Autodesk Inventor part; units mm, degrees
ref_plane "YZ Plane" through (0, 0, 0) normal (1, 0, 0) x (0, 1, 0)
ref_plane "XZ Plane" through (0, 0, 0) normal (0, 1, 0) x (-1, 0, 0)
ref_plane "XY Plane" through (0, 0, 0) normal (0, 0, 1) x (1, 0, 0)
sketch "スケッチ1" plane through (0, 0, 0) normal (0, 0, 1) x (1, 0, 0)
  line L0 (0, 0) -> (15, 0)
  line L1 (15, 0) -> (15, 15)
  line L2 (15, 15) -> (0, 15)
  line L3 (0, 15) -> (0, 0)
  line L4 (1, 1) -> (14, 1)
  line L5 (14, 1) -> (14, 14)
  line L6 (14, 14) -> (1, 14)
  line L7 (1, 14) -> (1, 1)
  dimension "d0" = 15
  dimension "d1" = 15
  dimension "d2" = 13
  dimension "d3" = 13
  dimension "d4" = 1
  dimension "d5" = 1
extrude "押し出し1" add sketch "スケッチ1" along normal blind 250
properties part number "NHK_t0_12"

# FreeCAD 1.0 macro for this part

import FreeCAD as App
import Part
import Sketcher


def add_polygon(sketch, points):
    """Adds a closed chain of lines whose ends are joined by coincident constraints."""
    first, n = sketch.GeometryCount, len(points)
    for a, b in zip(points, points[1:] + points[:1]):
        sketch.addGeometry(Part.LineSegment(App.Vector(*a, 0), App.Vector(*b, 0)), False)
    for i in range(n):
        sketch.addConstraint(Sketcher.Constraint("Coincident", first + i, 2, first + (i + 1) % n, 1))

doc = App.newDocument("Part")
params = doc.addObject("Spreadsheet::Sheet", "Params")
for row, (alias, value) in enumerate([
    ("sketch1_width", "15 mm"),
    ("sketch1_width2", "13 mm"),
    ("pad1_length", "250 mm"),
], start=1):
    params.set(f"A{row}", alias)
    params.set(f"B{row}", "=" + value)
    params.setAlias(f"B{row}", alias)

body = doc.addObject("PartDesign::Body", "Body")

sketch1 = body.newObject("Sketcher::SketchObject", "Sketch")
sketch1.AttachmentSupport = (doc.getObject("XY_Plane"), [""])
sketch1.MapMode = "FlatFace"
add_polygon(sketch1, [(0, 15), (0, 0), (15, 0), (15, 15)])
add_polygon(sketch1, [(14, 1), (1, 1), (1, 14), (14, 14)])
sketch1.addConstraint([
    Sketcher.Constraint("Vertical", 0),
    Sketcher.Constraint("Horizontal", 1),
    Sketcher.Constraint("Vertical", 2),
    Sketcher.Constraint("Horizontal", 3),
    Sketcher.Constraint("Horizontal", 4),
    Sketcher.Constraint("Vertical", 5),
    Sketcher.Constraint("Horizontal", 6),
    Sketcher.Constraint("Vertical", 7),
    Sketcher.Constraint("Coincident", 0, 2, -1, 1),
    Sketcher.Constraint("Equal", 3, 0),
    Sketcher.Constraint("Equal", 6, 5),
    Sketcher.Constraint("DistanceX", 1, 1, 1, 2, 15.0),
    Sketcher.Constraint("DistanceX", 4, 2, 4, 1, 13.0),
    Sketcher.Constraint("DistanceX", -1, 1, 4, 2, 1.0),
    Sketcher.Constraint("DistanceY", -1, 1, 4, 2, 1.0),
])
sketch1.setExpression("Constraints[19]", "Params.sketch1_width")
sketch1.setExpression("Constraints[20]", "Params.sketch1_width2")
pad1 = body.newObject("PartDesign::Pad", "Pad")
pad1.Profile = sketch1
pad1.setExpression("Length", "Params.pad1_length")

doc.recompute()
